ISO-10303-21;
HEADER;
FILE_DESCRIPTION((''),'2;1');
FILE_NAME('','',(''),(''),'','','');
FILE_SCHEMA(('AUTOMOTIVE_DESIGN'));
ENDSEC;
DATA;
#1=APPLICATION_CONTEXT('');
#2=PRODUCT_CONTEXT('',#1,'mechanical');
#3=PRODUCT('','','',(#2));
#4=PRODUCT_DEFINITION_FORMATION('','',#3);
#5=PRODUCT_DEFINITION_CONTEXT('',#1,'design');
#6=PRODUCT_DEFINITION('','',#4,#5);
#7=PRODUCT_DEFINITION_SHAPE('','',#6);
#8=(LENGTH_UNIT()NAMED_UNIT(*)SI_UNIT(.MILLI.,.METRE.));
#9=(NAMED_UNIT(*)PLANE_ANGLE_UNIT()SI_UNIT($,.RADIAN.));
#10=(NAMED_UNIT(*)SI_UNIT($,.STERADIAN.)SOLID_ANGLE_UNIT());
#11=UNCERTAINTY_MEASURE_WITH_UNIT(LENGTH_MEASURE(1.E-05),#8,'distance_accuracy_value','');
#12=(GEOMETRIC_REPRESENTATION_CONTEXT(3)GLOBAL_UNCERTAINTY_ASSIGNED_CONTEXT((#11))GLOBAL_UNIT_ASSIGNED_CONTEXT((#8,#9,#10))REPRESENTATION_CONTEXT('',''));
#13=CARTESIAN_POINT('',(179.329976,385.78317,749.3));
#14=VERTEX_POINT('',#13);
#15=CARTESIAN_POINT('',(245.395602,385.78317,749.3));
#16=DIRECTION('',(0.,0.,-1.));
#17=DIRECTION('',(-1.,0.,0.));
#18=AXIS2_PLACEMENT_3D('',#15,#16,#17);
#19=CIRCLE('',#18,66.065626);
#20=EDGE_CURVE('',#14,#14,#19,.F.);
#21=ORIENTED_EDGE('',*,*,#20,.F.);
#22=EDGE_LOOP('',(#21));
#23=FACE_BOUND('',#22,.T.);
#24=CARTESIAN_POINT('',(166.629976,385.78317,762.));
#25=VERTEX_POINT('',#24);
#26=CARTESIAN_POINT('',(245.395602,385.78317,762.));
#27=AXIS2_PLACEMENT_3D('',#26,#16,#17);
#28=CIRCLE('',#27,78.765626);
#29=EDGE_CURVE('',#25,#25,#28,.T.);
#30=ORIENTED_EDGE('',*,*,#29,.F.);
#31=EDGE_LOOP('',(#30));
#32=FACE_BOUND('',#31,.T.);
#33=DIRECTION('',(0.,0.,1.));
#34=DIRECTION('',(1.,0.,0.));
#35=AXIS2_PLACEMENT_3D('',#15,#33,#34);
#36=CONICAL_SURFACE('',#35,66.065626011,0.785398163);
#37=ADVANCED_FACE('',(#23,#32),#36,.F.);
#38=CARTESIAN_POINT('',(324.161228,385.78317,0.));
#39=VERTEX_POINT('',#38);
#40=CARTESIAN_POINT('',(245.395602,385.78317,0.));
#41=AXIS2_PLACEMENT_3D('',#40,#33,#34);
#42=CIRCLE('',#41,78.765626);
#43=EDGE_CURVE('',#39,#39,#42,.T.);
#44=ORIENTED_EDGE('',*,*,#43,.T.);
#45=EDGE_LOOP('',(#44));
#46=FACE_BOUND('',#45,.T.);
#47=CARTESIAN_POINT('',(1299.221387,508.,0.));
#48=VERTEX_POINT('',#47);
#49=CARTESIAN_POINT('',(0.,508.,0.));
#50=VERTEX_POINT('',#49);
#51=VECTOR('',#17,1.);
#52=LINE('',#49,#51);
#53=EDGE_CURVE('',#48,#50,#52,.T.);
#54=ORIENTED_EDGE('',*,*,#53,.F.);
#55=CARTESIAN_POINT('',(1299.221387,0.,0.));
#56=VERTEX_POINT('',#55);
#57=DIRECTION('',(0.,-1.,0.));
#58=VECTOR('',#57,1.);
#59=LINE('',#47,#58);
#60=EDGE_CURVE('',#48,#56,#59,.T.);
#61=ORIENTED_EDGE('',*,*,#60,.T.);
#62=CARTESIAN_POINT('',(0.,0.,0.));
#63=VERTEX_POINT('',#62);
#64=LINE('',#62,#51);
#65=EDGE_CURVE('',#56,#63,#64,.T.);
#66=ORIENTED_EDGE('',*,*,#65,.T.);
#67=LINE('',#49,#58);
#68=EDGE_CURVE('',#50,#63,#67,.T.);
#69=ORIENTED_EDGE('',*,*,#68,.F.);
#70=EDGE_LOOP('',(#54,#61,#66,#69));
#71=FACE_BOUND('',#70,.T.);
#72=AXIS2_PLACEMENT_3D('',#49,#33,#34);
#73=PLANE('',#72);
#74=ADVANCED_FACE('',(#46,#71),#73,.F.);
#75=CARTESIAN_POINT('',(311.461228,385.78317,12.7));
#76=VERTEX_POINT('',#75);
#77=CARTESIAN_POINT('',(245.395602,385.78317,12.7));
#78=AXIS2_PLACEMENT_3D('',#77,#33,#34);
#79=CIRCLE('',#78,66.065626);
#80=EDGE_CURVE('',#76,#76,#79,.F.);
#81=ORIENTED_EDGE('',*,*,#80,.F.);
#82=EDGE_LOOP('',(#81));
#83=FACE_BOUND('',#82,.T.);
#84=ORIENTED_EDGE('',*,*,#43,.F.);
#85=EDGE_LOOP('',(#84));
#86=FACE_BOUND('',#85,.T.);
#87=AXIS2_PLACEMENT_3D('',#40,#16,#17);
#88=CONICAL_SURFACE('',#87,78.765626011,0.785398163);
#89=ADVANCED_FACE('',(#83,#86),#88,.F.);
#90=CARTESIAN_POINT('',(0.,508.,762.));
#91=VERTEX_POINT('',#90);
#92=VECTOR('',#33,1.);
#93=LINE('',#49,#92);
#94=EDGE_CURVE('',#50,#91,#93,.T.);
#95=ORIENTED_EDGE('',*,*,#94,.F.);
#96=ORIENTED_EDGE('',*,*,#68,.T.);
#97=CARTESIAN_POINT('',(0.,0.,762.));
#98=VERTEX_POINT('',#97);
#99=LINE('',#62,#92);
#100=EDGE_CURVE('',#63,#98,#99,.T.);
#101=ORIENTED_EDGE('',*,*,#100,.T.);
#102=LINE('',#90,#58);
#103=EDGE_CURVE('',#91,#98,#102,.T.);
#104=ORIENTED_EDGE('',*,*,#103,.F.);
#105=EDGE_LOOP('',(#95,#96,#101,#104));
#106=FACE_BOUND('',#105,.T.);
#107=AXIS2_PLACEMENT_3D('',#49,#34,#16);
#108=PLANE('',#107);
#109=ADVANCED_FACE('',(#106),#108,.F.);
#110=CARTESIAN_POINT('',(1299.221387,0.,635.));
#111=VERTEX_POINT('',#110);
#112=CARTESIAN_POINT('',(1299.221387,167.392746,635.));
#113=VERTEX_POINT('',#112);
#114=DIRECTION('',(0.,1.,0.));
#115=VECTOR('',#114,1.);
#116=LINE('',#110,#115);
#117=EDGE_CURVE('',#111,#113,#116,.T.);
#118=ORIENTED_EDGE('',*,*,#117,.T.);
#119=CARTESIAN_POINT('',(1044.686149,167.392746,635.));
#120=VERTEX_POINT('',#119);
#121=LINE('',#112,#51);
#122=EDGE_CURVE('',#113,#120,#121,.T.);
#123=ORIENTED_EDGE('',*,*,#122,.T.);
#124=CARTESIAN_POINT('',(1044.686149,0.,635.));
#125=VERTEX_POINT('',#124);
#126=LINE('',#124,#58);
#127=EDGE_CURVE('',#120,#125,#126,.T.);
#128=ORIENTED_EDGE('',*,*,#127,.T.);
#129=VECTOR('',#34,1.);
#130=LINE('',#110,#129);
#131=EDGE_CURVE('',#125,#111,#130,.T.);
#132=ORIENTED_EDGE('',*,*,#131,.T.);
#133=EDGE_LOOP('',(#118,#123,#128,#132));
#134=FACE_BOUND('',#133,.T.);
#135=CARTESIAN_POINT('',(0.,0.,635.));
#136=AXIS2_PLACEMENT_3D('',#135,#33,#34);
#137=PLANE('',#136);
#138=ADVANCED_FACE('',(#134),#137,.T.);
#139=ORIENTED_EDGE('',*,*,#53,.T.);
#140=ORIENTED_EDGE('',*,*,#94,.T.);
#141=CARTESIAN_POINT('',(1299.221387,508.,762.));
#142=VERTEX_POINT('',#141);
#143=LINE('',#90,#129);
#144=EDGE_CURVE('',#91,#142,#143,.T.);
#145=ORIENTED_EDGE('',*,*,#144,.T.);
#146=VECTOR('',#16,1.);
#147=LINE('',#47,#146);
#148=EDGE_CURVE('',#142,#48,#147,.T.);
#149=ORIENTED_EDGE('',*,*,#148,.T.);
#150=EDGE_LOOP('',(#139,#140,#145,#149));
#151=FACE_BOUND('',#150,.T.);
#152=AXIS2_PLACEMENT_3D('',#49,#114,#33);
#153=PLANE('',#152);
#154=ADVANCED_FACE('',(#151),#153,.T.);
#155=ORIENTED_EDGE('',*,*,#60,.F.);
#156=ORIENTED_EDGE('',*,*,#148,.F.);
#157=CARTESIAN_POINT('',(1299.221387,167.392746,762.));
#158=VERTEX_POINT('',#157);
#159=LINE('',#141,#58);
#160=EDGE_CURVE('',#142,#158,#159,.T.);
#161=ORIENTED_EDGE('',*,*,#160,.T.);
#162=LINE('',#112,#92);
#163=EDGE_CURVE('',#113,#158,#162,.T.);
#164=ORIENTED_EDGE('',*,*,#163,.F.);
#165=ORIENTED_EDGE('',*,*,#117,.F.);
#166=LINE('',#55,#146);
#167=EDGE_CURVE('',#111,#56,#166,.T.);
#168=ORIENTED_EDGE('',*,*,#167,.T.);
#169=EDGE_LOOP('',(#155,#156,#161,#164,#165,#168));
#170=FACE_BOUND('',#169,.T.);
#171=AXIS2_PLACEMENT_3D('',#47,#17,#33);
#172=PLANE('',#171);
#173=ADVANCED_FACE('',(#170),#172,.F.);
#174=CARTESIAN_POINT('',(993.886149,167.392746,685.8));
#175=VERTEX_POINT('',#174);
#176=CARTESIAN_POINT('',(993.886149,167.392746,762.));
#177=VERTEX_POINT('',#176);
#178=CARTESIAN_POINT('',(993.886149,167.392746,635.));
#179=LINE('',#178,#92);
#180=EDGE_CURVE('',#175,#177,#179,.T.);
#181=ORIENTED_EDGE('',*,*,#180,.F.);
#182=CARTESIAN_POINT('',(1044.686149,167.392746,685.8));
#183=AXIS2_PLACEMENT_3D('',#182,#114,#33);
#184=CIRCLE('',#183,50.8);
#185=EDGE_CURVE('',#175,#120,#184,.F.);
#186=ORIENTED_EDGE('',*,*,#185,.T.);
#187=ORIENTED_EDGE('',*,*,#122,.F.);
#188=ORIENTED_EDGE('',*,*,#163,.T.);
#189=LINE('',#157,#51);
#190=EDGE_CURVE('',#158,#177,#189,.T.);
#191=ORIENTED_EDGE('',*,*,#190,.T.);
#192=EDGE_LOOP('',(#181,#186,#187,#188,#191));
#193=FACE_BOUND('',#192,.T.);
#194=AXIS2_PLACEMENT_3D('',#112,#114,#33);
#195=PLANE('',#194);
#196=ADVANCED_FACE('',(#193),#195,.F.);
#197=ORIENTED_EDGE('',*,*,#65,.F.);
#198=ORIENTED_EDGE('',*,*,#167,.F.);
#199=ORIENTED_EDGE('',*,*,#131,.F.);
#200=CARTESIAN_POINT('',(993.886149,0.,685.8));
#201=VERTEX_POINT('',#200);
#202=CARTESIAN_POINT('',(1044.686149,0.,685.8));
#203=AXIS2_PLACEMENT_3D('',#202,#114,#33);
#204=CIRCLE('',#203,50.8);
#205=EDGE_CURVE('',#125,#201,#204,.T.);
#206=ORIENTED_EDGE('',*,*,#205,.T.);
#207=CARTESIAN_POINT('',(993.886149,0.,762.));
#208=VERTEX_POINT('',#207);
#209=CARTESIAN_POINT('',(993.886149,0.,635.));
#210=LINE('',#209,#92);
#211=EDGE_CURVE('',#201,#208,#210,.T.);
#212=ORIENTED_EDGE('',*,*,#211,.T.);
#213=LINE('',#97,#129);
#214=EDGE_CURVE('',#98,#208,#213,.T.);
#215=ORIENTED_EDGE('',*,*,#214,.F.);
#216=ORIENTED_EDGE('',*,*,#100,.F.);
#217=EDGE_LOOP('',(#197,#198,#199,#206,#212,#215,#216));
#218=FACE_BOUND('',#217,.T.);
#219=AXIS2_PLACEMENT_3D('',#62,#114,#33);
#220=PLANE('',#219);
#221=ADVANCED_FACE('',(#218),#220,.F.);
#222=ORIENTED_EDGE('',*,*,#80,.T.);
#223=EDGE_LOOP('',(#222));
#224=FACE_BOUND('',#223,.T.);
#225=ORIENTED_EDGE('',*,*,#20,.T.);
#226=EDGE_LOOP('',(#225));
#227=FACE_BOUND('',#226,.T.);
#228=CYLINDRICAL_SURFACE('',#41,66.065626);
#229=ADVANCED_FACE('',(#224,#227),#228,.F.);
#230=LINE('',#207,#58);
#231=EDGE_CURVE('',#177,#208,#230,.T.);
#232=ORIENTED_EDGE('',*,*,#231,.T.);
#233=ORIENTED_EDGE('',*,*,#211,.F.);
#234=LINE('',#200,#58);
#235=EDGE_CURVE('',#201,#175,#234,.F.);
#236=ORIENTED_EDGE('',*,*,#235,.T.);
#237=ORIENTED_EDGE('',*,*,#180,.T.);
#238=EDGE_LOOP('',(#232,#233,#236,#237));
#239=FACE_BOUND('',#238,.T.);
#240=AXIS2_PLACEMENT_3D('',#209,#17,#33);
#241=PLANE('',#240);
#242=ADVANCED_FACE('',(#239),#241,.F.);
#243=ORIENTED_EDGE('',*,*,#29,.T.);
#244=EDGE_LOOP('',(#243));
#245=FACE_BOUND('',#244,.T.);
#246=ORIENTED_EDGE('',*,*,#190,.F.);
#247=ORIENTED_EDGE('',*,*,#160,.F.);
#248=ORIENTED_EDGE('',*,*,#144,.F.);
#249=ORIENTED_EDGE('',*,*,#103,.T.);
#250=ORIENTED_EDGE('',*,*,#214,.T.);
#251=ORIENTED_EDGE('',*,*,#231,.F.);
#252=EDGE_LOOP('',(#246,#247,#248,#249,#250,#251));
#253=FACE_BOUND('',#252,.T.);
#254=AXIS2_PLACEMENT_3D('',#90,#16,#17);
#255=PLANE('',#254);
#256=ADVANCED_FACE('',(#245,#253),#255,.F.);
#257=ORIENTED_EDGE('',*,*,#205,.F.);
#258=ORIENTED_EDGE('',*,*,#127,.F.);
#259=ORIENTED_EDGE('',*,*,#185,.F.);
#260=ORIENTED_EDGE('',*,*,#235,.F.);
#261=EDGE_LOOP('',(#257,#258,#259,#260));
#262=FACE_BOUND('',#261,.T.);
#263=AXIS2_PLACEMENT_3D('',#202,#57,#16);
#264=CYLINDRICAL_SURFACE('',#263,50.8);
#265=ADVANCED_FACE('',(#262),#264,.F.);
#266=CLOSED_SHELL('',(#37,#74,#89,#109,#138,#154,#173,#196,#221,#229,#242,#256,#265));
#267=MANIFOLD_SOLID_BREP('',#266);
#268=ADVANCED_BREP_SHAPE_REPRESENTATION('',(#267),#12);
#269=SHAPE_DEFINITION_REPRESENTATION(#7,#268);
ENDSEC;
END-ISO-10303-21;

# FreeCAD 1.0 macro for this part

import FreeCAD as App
import Part
import Sketcher

V = App.Vector
Q = App.Units.Quantity


def edges_at(feature, points):
    """Names of the edges that pass closest to the given points."""
    edges = feature.Shape.Edges
    near = lambda p: min(range(len(edges)), key=lambda i: edges[i].distToShape(Part.Vertex(*p))[0])
    return sorted({f"Edge{near(p) + 1}" for p in points})


def add_polygon(sketch, points):
    """Adds a closed chain of lines whose ends are joined by coincident constraints."""
    first, n = sketch.GeometryCount, len(points)
    for a, b in zip(points, points[1:] + points[:1]):
        sketch.addGeometry(Part.LineSegment(App.Vector(*a, 0), App.Vector(*b, 0)), False)
    for i in range(n):
        sketch.addConstraint(Sketcher.Constraint("Coincident", first + i, 2, first + (i + 1) % n, 1))

doc = App.newDocument("Part")
params = doc.addObject("Spreadsheet::Sheet", "Params")
for row, (alias, value) in enumerate([
    ("sketch1_height", "30 in"),
    ("pad1_length", "20 in"),
    ("chamfer_size", "0.5 in"),
    ("pocket2_length", "5 in"),
    ("fillet_radius", "2 in"),
], start=1):
    params.set(f"A{row}", alias)
    params.set(f"B{row}", "=" + value)
    params.setAlias(f"B{row}", alias)

body = doc.addObject("PartDesign::Body", "Body")

# Sketch on XZ plane
sketch1 = doc.addObject("Sketcher::SketchObject", "Sketch")
body.addObject(sketch1)
sketch1.AttachmentSupport = (doc.XZ_Plane, [""])
sketch1.MapMode = "FlatFace"
add_polygon(sketch1, [(0, 0), (0, 762), (1299.221387, 762), (1299.221387, 0)])  # lines 0-3
sketch1.addConstraint(Sketcher.Constraint("Vertical", 0))
sketch1.addConstraint(Sketcher.Constraint("Horizontal", 1))
sketch1.addConstraint(Sketcher.Constraint("Vertical", 2))
sketch1.addConstraint(Sketcher.Constraint("Horizontal", 3))
sketch1.addConstraint(Sketcher.Constraint("Coincident", 3, 2, -1, 1))
sketch1.addConstraint(Sketcher.Constraint("DistanceY", 0, 1, 0, 2, Q("30 in")))
sketch1.addConstraint(Sketcher.Constraint("DistanceX", 1, 1, 1, 2, 1299.221387))
sketch1.setExpression("Constraints[9]", "Params.sketch1_height")
pad1 = doc.addObject("PartDesign::Pad", "Pad")
body.addObject(pad1)
pad1.Profile = sketch1
pad1.setExpression("Length", "Params.pad1_length")
pad1.Reversed = True

# Sketch on XY plane
sketch2 = doc.addObject("Sketcher::SketchObject", "Sketch001")
body.addObject(sketch2)
sketch2.AttachmentSupport = (doc.XY_Plane, [""])
sketch2.MapMode = "FlatFace"
sketch2.AttachmentOffset = App.Placement(V(0, 0, 30 * 25.4), App.Rotation())
sketch2.addGeometry(Part.Circle(V(199.400638, 376.80467, 0), V(0, 0, 1), 90.110641), False)
sketch2.addConstraint(Sketcher.Constraint("Diameter", 0, 180.221281))
sketch2.addConstraint(Sketcher.Constraint("DistanceX", -1, 1, 0, 3, 199.400638))
sketch2.addConstraint(Sketcher.Constraint("DistanceY", -1, 1, 0, 3, 376.80467))
pad2 = doc.addObject("PartDesign::Pad", "Pad001")
body.addObject(pad2)
pad2.Profile = sketch2
pad2.Type = "UpToLast"
pad2.Reversed = True

# Sketch on XY plane
sketch3 = doc.addObject("Sketcher::SketchObject", "Sketch002")
body.addObject(sketch3)
sketch3.AttachmentSupport = (doc.XY_Plane, [""])
sketch3.MapMode = "FlatFace"
sketch3.AttachmentOffset = App.Placement(V(0, 0, 30 * 25.4), App.Rotation())
sketch3.addGeometry(Part.Circle(V(245.395602, 385.78317, 0), V(0, 0, 1), 66.065626), False)
sketch3.addConstraint(Sketcher.Constraint("Diameter", 0, 132.131252))
sketch3.addConstraint(Sketcher.Constraint("DistanceY", -1, 1, 0, 3, 385.78317))
sketch3.addConstraint(Sketcher.Constraint("DistanceX", -1, 1, 0, 3, 245.395602))
pocket1 = doc.addObject("PartDesign::Pocket", "Pocket")
body.addObject(pocket1)
pocket1.Profile = sketch3
pocket1.Type = "ThroughAll"
doc.recompute()

chamfer = doc.addObject("PartDesign::Chamfer", "Chamfer")
body.addObject(chamfer)
chamfer.Base = (pocket1, edges_at(pocket1, [(179.33, 385.783, 0), (179.33, 385.783, 762)]))
chamfer.setExpression("Size", "Params.chamfer_size")

# Sketch on XY plane
sketch4 = doc.addObject("Sketcher::SketchObject", "Sketch003")
body.addObject(sketch4)
sketch4.AttachmentSupport = (doc.XY_Plane, [""])
sketch4.MapMode = "FlatFace"
sketch4.AttachmentOffset = App.Placement(V(0, 0, 30 * 25.4), App.Rotation())
add_polygon(sketch4, [(993.886149, 167.392746), (993.886149, 0), (1299.221387, 0), (1299.221387, 167.392746)])  # lines 0-3
sketch4.addConstraint(Sketcher.Constraint("Vertical", 0))
sketch4.addConstraint(Sketcher.Constraint("Horizontal", 1))
sketch4.addConstraint(Sketcher.Constraint("Vertical", 2))
sketch4.addConstraint(Sketcher.Constraint("Horizontal", 3))
sketch4.addConstraint(Sketcher.Constraint("PointOnObject", 0, 2, -1))
sketch4.addConstraint(Sketcher.Constraint("DistanceX", 1, 1, 1, 2, 305.335237))
sketch4.addConstraint(Sketcher.Constraint("DistanceY", 0, 2, 0, 1, 167.392746))
sketch4.addConstraint(Sketcher.Constraint("DistanceX", -1, 1, 0, 2, 993.886149))
pocket2 = doc.addObject("PartDesign::Pocket", "Pocket001")
body.addObject(pocket2)
pocket2.Profile = sketch4
pocket2.setExpression("Length", "Params.pocket2_length")
doc.recompute()

fillet = doc.addObject("PartDesign::Fillet", "Fillet")
body.addObject(fillet)
fillet.Base = (pocket2, edges_at(pocket2, [(993.886, 83.696, 635)]))
fillet.setExpression("Radius", "Params.fillet_radius")

doc.recompute()
